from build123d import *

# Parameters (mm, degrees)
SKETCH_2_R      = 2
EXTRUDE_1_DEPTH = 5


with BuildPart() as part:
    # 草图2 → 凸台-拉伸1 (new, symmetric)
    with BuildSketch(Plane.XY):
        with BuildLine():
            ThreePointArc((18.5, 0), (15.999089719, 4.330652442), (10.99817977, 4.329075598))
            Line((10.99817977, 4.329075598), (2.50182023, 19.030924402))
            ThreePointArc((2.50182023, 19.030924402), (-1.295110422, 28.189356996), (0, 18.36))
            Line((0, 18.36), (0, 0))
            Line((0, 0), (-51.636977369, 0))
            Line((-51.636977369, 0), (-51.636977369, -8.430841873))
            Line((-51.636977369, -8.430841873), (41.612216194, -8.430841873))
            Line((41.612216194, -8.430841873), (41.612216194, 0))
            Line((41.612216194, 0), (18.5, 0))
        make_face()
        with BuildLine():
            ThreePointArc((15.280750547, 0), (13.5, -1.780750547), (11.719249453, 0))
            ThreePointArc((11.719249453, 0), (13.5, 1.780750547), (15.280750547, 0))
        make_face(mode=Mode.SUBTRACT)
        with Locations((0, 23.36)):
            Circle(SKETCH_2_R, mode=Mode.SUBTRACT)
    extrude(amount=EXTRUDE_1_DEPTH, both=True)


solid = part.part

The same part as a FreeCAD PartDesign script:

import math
import FreeCAD as App
import Part
import Sketcher
from FreeCAD import Vector
Q = App.Units.Quantity

doc = App.newDocument("Part")
params = doc.addObject("Spreadsheet::Sheet", "Params")
for row, (alias, value) in enumerate([
    ("sketch1_diameter", "4 mm"),
    ("sketch1_radius", "5 mm"),
    ("sketch1_height", "18.36 mm"),
    ("pad1_length", "10 mm"),
], start=1):
    params.set(f"A{row}", alias)
    params.set(f"B{row}", "=" + value)
    params.setAlias(f"B{row}", alias)

body = doc.addObject("PartDesign::Body", "Body")

sketch1 = body.newObject("Sketcher::SketchObject", "Sketch")
sketch1.AttachmentSupport = (doc.getObject("XY_Plane"), [""])
sketch1.MapMode = "FlatFace"
sketch1.addGeometry(Part.ArcOfCircle(Part.Circle(Vector(13.5, 0, 0), Vector(0, 0, 1), 5), math.radians(0), math.radians(120)), False)
sketch1.addGeometry(Part.LineSegment(Vector(11, 4.3, 0), Vector(2.5, 19, 0)), False)
sketch1.addGeometry(Part.ArcOfCircle(Part.Circle(Vector(0, 23.4, 0), Vector(0, 0, 1), 5), math.radians(-60), math.radians(270)), False)
sketch1.addGeometry(Part.LineSegment(Vector(0, 18.4, 0), Vector(0, 0, 0)), False)
sketch1.addGeometry(Part.LineSegment(Vector(0, 0, 0), Vector(-51.6, 0, 0)), False)
sketch1.addGeometry(Part.LineSegment(Vector(-51.6, 0, 0), Vector(-51.6, -8.4, 0)), False)
sketch1.addGeometry(Part.LineSegment(Vector(-51.6, -8.4, 0), Vector(41.6, -8.4, 0)), False)
sketch1.addGeometry(Part.LineSegment(Vector(41.6, -8.4, 0), Vector(41.6, 0, 0)), False)
sketch1.addGeometry(Part.LineSegment(Vector(41.6, 0, 0), Vector(18.5, 0, 0)), False)
sketch1.addGeometry(Part.Circle(Vector(13.5, 0, 0), Vector(0, 0, 1), 1.8), False)
sketch1.addGeometry(Part.Circle(Vector(0, 23.4, 0), Vector(0, 0, 1), 2), False)
sketch1.addConstraint(Sketcher.Constraint("Coincident", 0, 2, 1, 1))
sketch1.addConstraint(Sketcher.Constraint("Coincident", 1, 2, 2, 1))
sketch1.addConstraint(Sketcher.Constraint("Coincident", 2, 2, 3, 1))
sketch1.addConstraint(Sketcher.Constraint("Coincident", 3, 2, 4, 1))
sketch1.addConstraint(Sketcher.Constraint("Coincident", 4, 2, 5, 1))
sketch1.addConstraint(Sketcher.Constraint("Coincident", 5, 2, 6, 1))
sketch1.addConstraint(Sketcher.Constraint("Coincident", 6, 2, 7, 1))
sketch1.addConstraint(Sketcher.Constraint("Coincident", 7, 2, 8, 1))
sketch1.addConstraint(Sketcher.Constraint("Coincident", 8, 2, 0, 1))
sketch1.addConstraint(Sketcher.Constraint("Vertical", 3))
sketch1.addConstraint(Sketcher.Constraint("Horizontal", 4))
sketch1.addConstraint(Sketcher.Constraint("Vertical", 5))
sketch1.addConstraint(Sketcher.Constraint("Horizontal", 6))
sketch1.addConstraint(Sketcher.Constraint("Vertical", 7))
sketch1.addConstraint(Sketcher.Constraint("Horizontal", 8))
sketch1.addConstraint(Sketcher.Constraint("Coincident", 3, 2, -1, 1))
sketch1.addConstraint(Sketcher.Constraint("Coincident", 9, 3, 0, 3))
sketch1.addConstraint(Sketcher.Constraint("Coincident", 10, 3, 2, 3))
sketch1.addConstraint(Sketcher.Constraint("Equal", 0, 2))
sketch1.addConstraint(Sketcher.Constraint("PointOnObject", 0, 3, -1))
sketch1.addConstraint(Sketcher.Constraint("PointOnObject", 2, 3, -2))
sketch1.addConstraint(Sketcher.Constraint("PointOnObject", 7, 2, -1))
sketch1.addConstraint(Sketcher.Constraint("Diameter", 10, Q("4 mm")))
sketch1.addConstraint(Sketcher.Constraint("Radius", 0, Q("5 mm")))
sketch1.addConstraint(Sketcher.Constraint("Diameter", 9, Q("3.561501 mm")))
sketch1.addConstraint(Sketcher.Constraint("DistanceY", 3, 2, 3, 1, Q("18.36 mm")))
sketch1.addConstraint(Sketcher.Constraint("DistanceX", -1, 1, 0, 3, Q("13.5 mm")))
sketch1.addConstraint(Sketcher.Constraint("DistanceY", 5, 2, 5, 1, Q("8.430842 mm")))
sketch1.addConstraint(Sketcher.Constraint("DistanceX", 4, 2, 4, 1, Q("51.636977 mm")))
sketch1.addConstraint(Sketcher.Constraint("DistanceX", 6, 1, 6, 2, Q("93.249194 mm")))
sketch1.addConstraint(Sketcher.Constraint("DistanceX", -1, 1, 0, 2, Q("10.99818 mm")))
sketch1.addConstraint(Sketcher.Constraint("DistanceX", -1, 1, 1, 2, Q("2.50182 mm")))
sketch1.setExpression("Constraints[22]", "Params.sketch1_diameter")
sketch1.setExpression("Constraints[23]", "Params.sketch1_radius")
sketch1.setExpression("Constraints[25]", "Params.sketch1_height")
pad1 = body.newObject("PartDesign::Pad", "Pad")
pad1.Profile = sketch1
pad1.setExpression("Length", "Params.pad1_length")
pad1.Midplane = True

doc.recompute()
